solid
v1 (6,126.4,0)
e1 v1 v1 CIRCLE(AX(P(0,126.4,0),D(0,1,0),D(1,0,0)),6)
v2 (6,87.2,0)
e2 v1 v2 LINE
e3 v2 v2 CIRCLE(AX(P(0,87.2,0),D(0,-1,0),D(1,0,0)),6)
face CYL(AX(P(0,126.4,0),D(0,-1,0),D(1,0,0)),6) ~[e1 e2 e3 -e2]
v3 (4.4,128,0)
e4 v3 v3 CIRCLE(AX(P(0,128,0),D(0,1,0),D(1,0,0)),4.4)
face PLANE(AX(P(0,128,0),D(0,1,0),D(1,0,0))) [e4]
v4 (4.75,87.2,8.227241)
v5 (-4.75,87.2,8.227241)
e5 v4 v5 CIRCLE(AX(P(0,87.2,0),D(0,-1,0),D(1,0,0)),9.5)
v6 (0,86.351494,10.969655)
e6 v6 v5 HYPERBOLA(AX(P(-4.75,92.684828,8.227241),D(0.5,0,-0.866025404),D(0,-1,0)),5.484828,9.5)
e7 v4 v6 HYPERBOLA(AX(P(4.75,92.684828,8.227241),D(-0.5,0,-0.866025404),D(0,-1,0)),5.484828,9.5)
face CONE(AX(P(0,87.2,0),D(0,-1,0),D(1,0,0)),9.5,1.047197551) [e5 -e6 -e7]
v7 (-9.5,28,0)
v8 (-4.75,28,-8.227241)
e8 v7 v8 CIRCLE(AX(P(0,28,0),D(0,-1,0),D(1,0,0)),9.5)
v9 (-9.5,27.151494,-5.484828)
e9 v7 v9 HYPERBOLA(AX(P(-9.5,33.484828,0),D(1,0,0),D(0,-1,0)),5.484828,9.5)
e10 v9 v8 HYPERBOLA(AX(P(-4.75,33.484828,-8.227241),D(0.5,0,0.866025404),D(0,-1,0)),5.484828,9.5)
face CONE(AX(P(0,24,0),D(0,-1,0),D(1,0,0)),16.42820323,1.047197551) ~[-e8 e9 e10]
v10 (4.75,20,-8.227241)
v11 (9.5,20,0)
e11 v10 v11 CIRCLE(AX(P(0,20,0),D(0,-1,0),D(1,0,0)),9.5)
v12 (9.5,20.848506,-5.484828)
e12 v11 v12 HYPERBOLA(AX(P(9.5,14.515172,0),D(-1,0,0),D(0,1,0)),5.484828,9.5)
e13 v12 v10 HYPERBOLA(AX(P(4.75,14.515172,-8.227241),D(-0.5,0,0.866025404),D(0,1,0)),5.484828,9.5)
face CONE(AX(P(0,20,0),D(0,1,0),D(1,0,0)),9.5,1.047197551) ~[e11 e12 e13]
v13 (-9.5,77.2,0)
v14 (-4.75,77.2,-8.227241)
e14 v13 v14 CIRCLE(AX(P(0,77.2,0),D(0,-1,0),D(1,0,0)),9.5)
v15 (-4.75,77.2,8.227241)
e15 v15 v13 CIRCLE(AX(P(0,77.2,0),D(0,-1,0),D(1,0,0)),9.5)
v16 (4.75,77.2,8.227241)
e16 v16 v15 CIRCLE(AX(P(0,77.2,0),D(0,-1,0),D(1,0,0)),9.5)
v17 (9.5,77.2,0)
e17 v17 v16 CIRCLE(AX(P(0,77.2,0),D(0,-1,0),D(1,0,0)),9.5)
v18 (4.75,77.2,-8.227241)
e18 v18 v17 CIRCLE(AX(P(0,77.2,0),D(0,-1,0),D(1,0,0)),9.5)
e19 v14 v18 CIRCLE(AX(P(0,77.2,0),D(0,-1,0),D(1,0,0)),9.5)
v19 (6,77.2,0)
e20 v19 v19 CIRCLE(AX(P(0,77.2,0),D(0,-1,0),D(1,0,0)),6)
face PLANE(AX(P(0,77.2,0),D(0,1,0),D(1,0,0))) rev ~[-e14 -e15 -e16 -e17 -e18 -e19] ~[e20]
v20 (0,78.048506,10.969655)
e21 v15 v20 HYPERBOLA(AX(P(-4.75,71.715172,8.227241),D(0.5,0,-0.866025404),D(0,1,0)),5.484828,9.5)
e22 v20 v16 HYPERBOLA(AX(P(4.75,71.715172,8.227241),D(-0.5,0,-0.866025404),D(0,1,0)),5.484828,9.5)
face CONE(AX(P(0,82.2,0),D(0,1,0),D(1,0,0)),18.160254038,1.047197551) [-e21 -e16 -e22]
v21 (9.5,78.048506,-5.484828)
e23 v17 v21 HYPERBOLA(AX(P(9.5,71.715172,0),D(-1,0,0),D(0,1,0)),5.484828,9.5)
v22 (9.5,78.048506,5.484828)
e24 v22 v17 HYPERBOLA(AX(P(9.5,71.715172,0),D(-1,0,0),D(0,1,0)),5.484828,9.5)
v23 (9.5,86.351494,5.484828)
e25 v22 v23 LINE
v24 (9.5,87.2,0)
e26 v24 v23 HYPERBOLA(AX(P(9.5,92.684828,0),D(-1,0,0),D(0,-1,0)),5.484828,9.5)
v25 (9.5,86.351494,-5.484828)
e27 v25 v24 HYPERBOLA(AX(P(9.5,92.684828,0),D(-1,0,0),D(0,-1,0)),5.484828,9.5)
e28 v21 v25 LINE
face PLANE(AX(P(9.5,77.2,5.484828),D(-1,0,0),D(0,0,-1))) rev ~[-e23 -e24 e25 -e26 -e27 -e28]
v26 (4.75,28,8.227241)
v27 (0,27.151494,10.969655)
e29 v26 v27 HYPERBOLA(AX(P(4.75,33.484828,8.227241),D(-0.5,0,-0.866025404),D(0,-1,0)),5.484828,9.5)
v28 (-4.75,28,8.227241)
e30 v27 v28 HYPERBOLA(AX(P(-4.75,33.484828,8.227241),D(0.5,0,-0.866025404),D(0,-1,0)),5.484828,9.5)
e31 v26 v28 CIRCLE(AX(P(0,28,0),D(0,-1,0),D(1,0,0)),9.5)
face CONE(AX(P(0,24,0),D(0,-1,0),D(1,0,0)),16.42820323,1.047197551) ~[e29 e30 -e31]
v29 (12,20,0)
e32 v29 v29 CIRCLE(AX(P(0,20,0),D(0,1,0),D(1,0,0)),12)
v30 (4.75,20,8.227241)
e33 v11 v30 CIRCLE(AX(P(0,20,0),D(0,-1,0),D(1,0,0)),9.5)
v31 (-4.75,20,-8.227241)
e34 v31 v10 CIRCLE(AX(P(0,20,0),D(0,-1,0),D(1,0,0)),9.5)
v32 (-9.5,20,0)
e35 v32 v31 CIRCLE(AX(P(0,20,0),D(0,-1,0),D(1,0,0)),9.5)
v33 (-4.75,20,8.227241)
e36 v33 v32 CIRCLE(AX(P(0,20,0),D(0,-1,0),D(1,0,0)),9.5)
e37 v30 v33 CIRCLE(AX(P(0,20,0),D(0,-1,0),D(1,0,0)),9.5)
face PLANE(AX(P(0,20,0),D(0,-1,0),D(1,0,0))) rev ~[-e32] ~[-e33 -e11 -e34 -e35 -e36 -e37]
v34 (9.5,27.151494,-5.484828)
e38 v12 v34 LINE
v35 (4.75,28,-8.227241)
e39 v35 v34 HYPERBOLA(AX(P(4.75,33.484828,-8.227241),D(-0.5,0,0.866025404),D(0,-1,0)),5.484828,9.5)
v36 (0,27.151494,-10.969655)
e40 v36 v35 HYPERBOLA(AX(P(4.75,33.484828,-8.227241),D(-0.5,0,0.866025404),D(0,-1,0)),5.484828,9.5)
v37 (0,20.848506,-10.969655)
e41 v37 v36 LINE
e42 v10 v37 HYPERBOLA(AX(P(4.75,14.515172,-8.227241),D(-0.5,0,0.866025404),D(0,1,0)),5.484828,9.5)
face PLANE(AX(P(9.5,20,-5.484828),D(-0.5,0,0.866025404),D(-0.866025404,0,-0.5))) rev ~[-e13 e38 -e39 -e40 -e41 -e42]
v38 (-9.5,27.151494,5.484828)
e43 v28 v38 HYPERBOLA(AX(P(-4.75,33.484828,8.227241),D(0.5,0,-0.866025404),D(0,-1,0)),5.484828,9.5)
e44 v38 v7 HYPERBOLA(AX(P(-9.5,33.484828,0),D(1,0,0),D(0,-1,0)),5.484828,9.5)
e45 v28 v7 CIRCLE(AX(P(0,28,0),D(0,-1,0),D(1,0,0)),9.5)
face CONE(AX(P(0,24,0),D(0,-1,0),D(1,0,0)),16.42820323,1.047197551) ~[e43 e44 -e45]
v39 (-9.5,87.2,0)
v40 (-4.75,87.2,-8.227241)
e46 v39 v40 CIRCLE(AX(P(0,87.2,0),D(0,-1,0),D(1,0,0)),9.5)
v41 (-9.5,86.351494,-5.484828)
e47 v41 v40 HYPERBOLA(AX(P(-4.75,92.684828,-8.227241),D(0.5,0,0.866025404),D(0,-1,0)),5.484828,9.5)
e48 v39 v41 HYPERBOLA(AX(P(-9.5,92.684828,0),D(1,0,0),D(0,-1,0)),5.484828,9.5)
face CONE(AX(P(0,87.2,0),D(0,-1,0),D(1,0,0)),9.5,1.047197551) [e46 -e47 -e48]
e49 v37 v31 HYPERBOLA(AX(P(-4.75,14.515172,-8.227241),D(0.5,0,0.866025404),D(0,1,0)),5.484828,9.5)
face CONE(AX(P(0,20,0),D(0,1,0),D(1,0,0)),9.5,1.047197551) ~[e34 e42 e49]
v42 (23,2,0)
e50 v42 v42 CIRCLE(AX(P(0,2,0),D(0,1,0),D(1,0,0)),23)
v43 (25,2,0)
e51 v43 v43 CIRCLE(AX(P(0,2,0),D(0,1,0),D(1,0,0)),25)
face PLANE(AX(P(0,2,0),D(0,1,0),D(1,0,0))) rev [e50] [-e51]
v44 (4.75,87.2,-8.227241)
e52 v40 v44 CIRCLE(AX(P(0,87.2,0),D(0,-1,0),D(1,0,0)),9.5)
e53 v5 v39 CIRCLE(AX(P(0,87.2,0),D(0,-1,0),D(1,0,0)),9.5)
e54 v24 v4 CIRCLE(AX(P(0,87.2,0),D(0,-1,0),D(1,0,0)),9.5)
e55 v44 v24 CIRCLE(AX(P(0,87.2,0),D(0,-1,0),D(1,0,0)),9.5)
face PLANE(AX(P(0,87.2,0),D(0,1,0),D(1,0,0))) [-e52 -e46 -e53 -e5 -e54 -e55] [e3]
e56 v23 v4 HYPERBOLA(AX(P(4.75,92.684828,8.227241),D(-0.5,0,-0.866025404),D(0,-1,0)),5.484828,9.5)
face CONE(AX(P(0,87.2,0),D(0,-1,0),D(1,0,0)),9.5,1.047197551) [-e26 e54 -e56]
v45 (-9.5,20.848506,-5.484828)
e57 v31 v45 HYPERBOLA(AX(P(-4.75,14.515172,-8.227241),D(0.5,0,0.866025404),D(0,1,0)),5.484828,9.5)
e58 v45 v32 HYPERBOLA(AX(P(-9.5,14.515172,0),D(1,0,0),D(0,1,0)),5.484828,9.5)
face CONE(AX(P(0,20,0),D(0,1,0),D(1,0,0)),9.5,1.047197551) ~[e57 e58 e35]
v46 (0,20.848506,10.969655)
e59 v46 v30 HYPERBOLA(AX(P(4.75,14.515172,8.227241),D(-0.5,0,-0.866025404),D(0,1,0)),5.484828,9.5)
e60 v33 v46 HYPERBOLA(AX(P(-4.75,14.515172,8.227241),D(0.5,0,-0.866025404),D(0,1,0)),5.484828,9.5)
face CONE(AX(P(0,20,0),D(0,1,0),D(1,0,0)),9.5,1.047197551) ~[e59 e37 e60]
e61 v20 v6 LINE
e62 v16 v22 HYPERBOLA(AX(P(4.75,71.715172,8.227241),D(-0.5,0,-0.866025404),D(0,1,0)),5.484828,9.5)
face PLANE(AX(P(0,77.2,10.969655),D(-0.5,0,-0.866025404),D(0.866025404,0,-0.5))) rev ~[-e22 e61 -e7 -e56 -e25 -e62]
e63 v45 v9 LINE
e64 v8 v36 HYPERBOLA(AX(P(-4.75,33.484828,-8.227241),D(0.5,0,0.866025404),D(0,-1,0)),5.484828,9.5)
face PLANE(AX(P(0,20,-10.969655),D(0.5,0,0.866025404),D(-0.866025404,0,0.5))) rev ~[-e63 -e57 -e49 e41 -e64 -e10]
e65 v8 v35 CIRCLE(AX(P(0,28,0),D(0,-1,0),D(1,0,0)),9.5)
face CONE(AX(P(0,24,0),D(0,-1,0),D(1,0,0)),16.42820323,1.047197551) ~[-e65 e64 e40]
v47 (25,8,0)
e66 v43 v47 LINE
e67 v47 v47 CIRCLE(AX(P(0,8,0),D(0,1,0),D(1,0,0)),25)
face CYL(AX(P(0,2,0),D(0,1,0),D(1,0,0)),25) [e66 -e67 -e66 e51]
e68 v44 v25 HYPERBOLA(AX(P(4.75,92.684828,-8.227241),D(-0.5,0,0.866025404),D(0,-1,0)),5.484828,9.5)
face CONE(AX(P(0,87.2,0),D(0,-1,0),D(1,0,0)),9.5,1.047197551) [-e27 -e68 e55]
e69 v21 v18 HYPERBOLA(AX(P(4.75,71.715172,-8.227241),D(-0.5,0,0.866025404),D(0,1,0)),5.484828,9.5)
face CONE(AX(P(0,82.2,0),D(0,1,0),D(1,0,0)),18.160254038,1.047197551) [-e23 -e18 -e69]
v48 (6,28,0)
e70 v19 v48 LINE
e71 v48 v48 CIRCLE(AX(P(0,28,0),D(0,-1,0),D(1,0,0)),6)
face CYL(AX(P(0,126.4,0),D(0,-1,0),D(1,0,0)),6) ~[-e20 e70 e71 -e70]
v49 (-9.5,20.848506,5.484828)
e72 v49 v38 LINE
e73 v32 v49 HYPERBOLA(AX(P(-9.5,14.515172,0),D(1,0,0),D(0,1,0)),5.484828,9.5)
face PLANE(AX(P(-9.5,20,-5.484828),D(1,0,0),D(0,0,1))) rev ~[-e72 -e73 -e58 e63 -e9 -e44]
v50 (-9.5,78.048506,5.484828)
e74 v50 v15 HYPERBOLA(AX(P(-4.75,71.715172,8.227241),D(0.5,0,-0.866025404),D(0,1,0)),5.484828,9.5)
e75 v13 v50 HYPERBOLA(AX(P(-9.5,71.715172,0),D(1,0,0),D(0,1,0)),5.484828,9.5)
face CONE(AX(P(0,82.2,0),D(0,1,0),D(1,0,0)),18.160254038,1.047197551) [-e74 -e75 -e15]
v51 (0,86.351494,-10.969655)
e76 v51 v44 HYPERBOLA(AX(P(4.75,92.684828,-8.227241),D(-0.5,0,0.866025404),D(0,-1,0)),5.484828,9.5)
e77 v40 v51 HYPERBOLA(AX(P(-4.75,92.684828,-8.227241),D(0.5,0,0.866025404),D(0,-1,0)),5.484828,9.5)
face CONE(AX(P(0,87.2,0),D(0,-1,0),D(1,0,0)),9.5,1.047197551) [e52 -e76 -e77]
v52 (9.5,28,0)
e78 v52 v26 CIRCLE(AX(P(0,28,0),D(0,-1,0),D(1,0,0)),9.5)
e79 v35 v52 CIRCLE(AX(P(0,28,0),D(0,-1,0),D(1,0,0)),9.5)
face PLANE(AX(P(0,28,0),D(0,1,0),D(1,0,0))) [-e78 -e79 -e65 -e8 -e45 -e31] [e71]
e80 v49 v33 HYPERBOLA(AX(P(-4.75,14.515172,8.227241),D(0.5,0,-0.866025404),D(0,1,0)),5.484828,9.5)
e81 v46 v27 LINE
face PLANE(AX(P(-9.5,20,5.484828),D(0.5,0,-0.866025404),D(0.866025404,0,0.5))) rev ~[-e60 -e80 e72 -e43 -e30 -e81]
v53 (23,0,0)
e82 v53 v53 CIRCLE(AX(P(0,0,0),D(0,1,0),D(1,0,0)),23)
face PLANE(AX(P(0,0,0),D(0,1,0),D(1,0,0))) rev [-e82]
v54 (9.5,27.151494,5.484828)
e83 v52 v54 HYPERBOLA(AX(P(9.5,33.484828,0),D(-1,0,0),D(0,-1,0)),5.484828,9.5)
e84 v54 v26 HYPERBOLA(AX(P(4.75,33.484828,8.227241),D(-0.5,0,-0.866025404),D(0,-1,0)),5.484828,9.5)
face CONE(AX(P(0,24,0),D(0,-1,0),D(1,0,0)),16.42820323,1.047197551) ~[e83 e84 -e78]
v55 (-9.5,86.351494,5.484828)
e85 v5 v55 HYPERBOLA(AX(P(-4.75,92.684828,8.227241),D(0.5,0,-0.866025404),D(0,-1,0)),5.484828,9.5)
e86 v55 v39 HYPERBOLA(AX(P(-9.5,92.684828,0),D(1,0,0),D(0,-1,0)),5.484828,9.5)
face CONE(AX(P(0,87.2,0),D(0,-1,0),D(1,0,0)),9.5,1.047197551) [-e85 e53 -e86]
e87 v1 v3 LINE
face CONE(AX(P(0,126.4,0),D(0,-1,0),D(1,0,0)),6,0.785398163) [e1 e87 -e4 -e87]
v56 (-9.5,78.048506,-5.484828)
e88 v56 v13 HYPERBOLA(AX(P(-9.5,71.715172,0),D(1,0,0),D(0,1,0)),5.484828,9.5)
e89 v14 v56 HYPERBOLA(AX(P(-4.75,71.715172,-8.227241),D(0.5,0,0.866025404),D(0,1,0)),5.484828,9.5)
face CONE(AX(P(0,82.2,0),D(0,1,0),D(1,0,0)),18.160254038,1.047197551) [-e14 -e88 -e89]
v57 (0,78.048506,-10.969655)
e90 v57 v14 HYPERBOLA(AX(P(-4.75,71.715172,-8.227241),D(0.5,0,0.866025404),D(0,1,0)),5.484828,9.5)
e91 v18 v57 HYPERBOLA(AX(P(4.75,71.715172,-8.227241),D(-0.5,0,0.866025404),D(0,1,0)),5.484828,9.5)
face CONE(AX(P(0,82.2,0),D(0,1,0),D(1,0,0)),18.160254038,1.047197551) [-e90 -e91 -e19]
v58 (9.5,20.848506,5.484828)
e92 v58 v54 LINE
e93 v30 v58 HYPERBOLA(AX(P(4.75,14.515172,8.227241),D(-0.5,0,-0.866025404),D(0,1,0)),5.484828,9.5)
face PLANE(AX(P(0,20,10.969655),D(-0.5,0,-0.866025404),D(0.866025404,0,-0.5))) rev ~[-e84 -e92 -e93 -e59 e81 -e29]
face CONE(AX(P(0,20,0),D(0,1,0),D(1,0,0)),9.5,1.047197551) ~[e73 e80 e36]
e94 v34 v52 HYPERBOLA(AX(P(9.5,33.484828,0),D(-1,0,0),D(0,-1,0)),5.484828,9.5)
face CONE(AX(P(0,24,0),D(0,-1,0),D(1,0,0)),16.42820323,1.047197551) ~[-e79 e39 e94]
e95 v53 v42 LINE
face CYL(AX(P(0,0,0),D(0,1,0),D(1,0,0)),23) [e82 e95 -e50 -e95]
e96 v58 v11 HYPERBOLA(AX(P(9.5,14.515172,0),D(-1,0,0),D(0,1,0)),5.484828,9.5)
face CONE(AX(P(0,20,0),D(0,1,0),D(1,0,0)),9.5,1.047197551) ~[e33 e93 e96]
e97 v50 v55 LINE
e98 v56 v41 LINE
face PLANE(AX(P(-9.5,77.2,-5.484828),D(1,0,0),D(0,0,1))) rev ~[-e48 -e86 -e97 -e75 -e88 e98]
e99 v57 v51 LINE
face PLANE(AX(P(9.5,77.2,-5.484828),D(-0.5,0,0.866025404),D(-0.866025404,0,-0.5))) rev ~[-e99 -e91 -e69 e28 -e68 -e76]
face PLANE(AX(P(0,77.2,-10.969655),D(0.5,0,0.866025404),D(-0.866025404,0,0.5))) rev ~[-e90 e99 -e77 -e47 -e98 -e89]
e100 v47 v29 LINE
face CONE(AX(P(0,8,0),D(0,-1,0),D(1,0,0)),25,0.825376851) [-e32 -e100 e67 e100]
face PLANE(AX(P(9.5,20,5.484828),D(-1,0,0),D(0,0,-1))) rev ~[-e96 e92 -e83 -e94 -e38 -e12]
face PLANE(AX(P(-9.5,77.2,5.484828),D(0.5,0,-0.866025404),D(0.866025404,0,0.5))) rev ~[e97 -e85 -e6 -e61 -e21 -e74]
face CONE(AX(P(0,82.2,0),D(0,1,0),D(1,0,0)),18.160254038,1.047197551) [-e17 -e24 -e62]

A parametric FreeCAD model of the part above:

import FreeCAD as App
import Part
import Sketcher

V = App.Vector
Q = App.Units.Quantity


def add_polygon(sketch, points):
    """Adds a closed chain of lines whose ends are joined by coincident constraints."""
    first, n = sketch.GeometryCount, len(points)
    for a, b in zip(points, points[1:] + points[:1]):
        sketch.addGeometry(Part.LineSegment(App.Vector(*a, 0), App.Vector(*b, 0)), False)
    for i in range(n):
        sketch.addConstraint(Sketcher.Constraint("Coincident", first + i, 2, first + (i + 1) % n, 1))

doc = App.newDocument("Part")
body = doc.addObject("PartDesign::Body", "Body")

# Sketch on XY plane
sketch1 = body.newObject("Sketcher::SketchObject", "Sketch")
sketch1.AttachmentSupport = (doc.getObject("XY_Plane"), [""])
sketch1.MapMode = "FlatFace"
add_polygon(sketch1, [(-23, 0), (0, 0), (0, 128), (-4.4, 128), (-6, 126.4), (-6, 20), (-12, 20), (-25, 8), (-25, 2), (-23, 2)])  # lines 0-9
sketch1.addConstraint([
    Sketcher.Constraint("Horizontal", 0),
    Sketcher.Constraint("Vertical", 1),
    Sketcher.Constraint("Horizontal", 2),
    Sketcher.Constraint("Vertical", 4),
    Sketcher.Constraint("Horizontal", 5),
    Sketcher.Constraint("Vertical", 7),
    Sketcher.Constraint("Horizontal", 8),
    Sketcher.Constraint("Vertical", 9),
    Sketcher.Constraint("Coincident", 0, 2, -1, 1),
    Sketcher.Constraint("Equal", 5, 7),
    Sketcher.Constraint("Equal", 8, 9),
    Sketcher.Constraint("DistanceX", 0, 1, 0, 2, Q("23 mm")),
    Sketcher.Constraint("DistanceX", 5, 2, 5, 1, Q("6 mm")),
    Sketcher.Constraint("DistanceX", 8, 1, 8, 2, Q("2 mm")),
    Sketcher.Constraint("DistanceY", 1, 1, 1, 2, Q("128 mm")),
    Sketcher.Constraint("Angle", 3, Q("-135 deg")),
    Sketcher.Constraint("DistanceX", 2, 2, 2, 1, Q("4.4 mm")),
    Sketcher.Constraint("DistanceY", 4, 2, 4, 1, Q("106.4 mm")),
    Sketcher.Constraint("DistanceX", 3, 2, -1, 1, Q("6 mm")),
])
revolution = body.newObject("PartDesign::Revolution", "Revolution")
revolution.Profile = sketch1
revolution.ReferenceAxis = (sketch1, ["V_Axis"])
revolution.Angle = 360

# Sketch on XZ plane
sketch2 = body.newObject("Sketcher::SketchObject", "Sketch001")
sketch2.AttachmentSupport = (doc.getObject("XZ_Plane"), [""])
sketch2.MapMode = "FlatFace"
sketch2.AttachmentOffset = App.Placement(V(0, 0, -20), App.Rotation())
add_polygon(sketch2, [(0, -10.969655), (-9.5, -5.484828), (-9.5, 5.484828), (0, 10.969655), (9.5, 5.484828), (9.5, -5.484828)])  # lines 0-5
sketch2.addConstraint([
    Sketcher.Constraint("Vertical", 1),
    Sketcher.Constraint("Vertical", 4),
    Sketcher.Constraint("Symmetric", 0, 2, 3, 2, -1, 1),
    Sketcher.Constraint("Symmetric", 2, 2, 5, 2, -1, 1),
    Sketcher.Constraint("PointOnObject", 2, 2, -2),
    Sketcher.Constraint("Parallel", 2, 5),
    Sketcher.Constraint("Horizontal", 1, 2, 3, 2),
    Sketcher.Constraint("Angle", 0, Q("150 deg")),
    Sketcher.Constraint("DistanceX", 1, 2, 3, 2, Q("19 mm")),
    Sketcher.Constraint("DistanceY", 1, 1, 1, 2, Q("10.969655 mm")),
])
pad1 = body.newObject("PartDesign::Pad", "Pad")
pad1.Profile = sketch2
pad1.Length = 8
pad1.Reversed = True

# Sketch on XZ plane
sketch3 = body.newObject("Sketcher::SketchObject", "Sketch002")
sketch3.AttachmentSupport = (doc.getObject("XZ_Plane"), [""])
sketch3.MapMode = "FlatFace"
sketch3.AttachmentOffset = App.Placement(V(0, 0, -77.2), App.Rotation())
add_polygon(sketch3, [(9.5, -5.484828), (0, -10.969655), (-9.5, -5.484828), (-9.5, 5.484828), (0, 10.969655), (9.5, 5.484828)])  # lines 0-5
sketch3.addConstraint([
    Sketcher.Constraint("Vertical", 2),
    Sketcher.Constraint("Vertical", 5),
    Sketcher.Constraint("Symmetric", 0, 2, 3, 2, -1, 1),
    Sketcher.Constraint("Symmetric", 1, 2, 4, 2, -1, 1),
    Sketcher.Constraint("PointOnObject", 0, 2, -2),
    Sketcher.Constraint("Parallel", 0, 3),
    Sketcher.Constraint("Horizontal", 2, 2, 4, 2),
    Sketcher.Constraint("Angle", 0, Q("-150 deg")),
    Sketcher.Constraint("DistanceX", 2, 2, 4, 2, Q("19 mm")),
    Sketcher.Constraint("DistanceY", 2, 1, 2, 2, Q("10.969655 mm")),
])
pad2 = body.newObject("PartDesign::Pad", "Pad001")
pad2.Profile = sketch3
pad2.Length = 10
pad2.Reversed = True

# Sketch on XY plane
sketch4 = body.newObject("Sketcher::SketchObject", "Sketch003")
sketch4.AttachmentSupport = (doc.getObject("XY_Plane"), [""])
sketch4.MapMode = "FlatFace"
add_polygon(sketch4, [(-9.5, 87.2), (-18.160254, 87.2), (-18.160254, 82.2)])  # lines 0-2
add_polygon(sketch4, [(-18.160254, 82.2), (-18.160254, 77.2), (-9.5, 77.2)])  # lines 3-5
add_polygon(sketch4, [(-16.428203, 28), (-16.428203, 24), (-9.5, 28)])  # lines 6-8
add_polygon(sketch4, [(-16.428203, 24), (-16.428203, 20), (-9.5, 20)])  # lines 9-11
sketch4.addConstraint([
    Sketcher.Constraint("Horizontal", 0),
    Sketcher.Constraint("Vertical", 1),
    Sketcher.Constraint("Vertical", 3),
    Sketcher.Constraint("Horizontal", 4),
    Sketcher.Constraint("Vertical", 6),
    Sketcher.Constraint("Horizontal", 8),
    Sketcher.Constraint("Vertical", 9),
    Sketcher.Constraint("Horizontal", 10),
    Sketcher.Constraint("Coincident", 5, 2, 1, 2),
    Sketcher.Constraint("Coincident", 11, 2, 6, 2),
    Sketcher.Constraint("Parallel", 2, 7),
    Sketcher.Constraint("Parallel", 5, 11),
    Sketcher.Constraint("Vertical", 2, 2, 4, 2),
    Sketcher.Constraint("Vertical", 4, 2, 7, 2),
    Sketcher.Constraint("Vertical", 7, 2, 10, 2),
    Sketcher.Constraint("Equal", 1, 3),
    Sketcher.Constraint("DistanceY", 1, 2, 1, 1, Q("5 mm")),
    Sketcher.Constraint("DistanceY", 6, 2, 6, 1, Q("4 mm")),
    Sketcher.Constraint("Angle", 2, Q("30 deg")),
    Sketcher.Constraint("DistanceY", -1, 1, 6, 2, Q("24 mm")),
    Sketcher.Constraint("DistanceY", -1, 1, 0, 2, Q("87.2 mm")),
    Sketcher.Constraint("DistanceX", 2, 2, -1, 1, Q("9.5 mm")),
])
groove = body.newObject("PartDesign::Groove", "Groove")
groove.Profile = sketch4
groove.ReferenceAxis = (sketch4, ["V_Axis"])
groove.Angle = 360

doc.recompute()
